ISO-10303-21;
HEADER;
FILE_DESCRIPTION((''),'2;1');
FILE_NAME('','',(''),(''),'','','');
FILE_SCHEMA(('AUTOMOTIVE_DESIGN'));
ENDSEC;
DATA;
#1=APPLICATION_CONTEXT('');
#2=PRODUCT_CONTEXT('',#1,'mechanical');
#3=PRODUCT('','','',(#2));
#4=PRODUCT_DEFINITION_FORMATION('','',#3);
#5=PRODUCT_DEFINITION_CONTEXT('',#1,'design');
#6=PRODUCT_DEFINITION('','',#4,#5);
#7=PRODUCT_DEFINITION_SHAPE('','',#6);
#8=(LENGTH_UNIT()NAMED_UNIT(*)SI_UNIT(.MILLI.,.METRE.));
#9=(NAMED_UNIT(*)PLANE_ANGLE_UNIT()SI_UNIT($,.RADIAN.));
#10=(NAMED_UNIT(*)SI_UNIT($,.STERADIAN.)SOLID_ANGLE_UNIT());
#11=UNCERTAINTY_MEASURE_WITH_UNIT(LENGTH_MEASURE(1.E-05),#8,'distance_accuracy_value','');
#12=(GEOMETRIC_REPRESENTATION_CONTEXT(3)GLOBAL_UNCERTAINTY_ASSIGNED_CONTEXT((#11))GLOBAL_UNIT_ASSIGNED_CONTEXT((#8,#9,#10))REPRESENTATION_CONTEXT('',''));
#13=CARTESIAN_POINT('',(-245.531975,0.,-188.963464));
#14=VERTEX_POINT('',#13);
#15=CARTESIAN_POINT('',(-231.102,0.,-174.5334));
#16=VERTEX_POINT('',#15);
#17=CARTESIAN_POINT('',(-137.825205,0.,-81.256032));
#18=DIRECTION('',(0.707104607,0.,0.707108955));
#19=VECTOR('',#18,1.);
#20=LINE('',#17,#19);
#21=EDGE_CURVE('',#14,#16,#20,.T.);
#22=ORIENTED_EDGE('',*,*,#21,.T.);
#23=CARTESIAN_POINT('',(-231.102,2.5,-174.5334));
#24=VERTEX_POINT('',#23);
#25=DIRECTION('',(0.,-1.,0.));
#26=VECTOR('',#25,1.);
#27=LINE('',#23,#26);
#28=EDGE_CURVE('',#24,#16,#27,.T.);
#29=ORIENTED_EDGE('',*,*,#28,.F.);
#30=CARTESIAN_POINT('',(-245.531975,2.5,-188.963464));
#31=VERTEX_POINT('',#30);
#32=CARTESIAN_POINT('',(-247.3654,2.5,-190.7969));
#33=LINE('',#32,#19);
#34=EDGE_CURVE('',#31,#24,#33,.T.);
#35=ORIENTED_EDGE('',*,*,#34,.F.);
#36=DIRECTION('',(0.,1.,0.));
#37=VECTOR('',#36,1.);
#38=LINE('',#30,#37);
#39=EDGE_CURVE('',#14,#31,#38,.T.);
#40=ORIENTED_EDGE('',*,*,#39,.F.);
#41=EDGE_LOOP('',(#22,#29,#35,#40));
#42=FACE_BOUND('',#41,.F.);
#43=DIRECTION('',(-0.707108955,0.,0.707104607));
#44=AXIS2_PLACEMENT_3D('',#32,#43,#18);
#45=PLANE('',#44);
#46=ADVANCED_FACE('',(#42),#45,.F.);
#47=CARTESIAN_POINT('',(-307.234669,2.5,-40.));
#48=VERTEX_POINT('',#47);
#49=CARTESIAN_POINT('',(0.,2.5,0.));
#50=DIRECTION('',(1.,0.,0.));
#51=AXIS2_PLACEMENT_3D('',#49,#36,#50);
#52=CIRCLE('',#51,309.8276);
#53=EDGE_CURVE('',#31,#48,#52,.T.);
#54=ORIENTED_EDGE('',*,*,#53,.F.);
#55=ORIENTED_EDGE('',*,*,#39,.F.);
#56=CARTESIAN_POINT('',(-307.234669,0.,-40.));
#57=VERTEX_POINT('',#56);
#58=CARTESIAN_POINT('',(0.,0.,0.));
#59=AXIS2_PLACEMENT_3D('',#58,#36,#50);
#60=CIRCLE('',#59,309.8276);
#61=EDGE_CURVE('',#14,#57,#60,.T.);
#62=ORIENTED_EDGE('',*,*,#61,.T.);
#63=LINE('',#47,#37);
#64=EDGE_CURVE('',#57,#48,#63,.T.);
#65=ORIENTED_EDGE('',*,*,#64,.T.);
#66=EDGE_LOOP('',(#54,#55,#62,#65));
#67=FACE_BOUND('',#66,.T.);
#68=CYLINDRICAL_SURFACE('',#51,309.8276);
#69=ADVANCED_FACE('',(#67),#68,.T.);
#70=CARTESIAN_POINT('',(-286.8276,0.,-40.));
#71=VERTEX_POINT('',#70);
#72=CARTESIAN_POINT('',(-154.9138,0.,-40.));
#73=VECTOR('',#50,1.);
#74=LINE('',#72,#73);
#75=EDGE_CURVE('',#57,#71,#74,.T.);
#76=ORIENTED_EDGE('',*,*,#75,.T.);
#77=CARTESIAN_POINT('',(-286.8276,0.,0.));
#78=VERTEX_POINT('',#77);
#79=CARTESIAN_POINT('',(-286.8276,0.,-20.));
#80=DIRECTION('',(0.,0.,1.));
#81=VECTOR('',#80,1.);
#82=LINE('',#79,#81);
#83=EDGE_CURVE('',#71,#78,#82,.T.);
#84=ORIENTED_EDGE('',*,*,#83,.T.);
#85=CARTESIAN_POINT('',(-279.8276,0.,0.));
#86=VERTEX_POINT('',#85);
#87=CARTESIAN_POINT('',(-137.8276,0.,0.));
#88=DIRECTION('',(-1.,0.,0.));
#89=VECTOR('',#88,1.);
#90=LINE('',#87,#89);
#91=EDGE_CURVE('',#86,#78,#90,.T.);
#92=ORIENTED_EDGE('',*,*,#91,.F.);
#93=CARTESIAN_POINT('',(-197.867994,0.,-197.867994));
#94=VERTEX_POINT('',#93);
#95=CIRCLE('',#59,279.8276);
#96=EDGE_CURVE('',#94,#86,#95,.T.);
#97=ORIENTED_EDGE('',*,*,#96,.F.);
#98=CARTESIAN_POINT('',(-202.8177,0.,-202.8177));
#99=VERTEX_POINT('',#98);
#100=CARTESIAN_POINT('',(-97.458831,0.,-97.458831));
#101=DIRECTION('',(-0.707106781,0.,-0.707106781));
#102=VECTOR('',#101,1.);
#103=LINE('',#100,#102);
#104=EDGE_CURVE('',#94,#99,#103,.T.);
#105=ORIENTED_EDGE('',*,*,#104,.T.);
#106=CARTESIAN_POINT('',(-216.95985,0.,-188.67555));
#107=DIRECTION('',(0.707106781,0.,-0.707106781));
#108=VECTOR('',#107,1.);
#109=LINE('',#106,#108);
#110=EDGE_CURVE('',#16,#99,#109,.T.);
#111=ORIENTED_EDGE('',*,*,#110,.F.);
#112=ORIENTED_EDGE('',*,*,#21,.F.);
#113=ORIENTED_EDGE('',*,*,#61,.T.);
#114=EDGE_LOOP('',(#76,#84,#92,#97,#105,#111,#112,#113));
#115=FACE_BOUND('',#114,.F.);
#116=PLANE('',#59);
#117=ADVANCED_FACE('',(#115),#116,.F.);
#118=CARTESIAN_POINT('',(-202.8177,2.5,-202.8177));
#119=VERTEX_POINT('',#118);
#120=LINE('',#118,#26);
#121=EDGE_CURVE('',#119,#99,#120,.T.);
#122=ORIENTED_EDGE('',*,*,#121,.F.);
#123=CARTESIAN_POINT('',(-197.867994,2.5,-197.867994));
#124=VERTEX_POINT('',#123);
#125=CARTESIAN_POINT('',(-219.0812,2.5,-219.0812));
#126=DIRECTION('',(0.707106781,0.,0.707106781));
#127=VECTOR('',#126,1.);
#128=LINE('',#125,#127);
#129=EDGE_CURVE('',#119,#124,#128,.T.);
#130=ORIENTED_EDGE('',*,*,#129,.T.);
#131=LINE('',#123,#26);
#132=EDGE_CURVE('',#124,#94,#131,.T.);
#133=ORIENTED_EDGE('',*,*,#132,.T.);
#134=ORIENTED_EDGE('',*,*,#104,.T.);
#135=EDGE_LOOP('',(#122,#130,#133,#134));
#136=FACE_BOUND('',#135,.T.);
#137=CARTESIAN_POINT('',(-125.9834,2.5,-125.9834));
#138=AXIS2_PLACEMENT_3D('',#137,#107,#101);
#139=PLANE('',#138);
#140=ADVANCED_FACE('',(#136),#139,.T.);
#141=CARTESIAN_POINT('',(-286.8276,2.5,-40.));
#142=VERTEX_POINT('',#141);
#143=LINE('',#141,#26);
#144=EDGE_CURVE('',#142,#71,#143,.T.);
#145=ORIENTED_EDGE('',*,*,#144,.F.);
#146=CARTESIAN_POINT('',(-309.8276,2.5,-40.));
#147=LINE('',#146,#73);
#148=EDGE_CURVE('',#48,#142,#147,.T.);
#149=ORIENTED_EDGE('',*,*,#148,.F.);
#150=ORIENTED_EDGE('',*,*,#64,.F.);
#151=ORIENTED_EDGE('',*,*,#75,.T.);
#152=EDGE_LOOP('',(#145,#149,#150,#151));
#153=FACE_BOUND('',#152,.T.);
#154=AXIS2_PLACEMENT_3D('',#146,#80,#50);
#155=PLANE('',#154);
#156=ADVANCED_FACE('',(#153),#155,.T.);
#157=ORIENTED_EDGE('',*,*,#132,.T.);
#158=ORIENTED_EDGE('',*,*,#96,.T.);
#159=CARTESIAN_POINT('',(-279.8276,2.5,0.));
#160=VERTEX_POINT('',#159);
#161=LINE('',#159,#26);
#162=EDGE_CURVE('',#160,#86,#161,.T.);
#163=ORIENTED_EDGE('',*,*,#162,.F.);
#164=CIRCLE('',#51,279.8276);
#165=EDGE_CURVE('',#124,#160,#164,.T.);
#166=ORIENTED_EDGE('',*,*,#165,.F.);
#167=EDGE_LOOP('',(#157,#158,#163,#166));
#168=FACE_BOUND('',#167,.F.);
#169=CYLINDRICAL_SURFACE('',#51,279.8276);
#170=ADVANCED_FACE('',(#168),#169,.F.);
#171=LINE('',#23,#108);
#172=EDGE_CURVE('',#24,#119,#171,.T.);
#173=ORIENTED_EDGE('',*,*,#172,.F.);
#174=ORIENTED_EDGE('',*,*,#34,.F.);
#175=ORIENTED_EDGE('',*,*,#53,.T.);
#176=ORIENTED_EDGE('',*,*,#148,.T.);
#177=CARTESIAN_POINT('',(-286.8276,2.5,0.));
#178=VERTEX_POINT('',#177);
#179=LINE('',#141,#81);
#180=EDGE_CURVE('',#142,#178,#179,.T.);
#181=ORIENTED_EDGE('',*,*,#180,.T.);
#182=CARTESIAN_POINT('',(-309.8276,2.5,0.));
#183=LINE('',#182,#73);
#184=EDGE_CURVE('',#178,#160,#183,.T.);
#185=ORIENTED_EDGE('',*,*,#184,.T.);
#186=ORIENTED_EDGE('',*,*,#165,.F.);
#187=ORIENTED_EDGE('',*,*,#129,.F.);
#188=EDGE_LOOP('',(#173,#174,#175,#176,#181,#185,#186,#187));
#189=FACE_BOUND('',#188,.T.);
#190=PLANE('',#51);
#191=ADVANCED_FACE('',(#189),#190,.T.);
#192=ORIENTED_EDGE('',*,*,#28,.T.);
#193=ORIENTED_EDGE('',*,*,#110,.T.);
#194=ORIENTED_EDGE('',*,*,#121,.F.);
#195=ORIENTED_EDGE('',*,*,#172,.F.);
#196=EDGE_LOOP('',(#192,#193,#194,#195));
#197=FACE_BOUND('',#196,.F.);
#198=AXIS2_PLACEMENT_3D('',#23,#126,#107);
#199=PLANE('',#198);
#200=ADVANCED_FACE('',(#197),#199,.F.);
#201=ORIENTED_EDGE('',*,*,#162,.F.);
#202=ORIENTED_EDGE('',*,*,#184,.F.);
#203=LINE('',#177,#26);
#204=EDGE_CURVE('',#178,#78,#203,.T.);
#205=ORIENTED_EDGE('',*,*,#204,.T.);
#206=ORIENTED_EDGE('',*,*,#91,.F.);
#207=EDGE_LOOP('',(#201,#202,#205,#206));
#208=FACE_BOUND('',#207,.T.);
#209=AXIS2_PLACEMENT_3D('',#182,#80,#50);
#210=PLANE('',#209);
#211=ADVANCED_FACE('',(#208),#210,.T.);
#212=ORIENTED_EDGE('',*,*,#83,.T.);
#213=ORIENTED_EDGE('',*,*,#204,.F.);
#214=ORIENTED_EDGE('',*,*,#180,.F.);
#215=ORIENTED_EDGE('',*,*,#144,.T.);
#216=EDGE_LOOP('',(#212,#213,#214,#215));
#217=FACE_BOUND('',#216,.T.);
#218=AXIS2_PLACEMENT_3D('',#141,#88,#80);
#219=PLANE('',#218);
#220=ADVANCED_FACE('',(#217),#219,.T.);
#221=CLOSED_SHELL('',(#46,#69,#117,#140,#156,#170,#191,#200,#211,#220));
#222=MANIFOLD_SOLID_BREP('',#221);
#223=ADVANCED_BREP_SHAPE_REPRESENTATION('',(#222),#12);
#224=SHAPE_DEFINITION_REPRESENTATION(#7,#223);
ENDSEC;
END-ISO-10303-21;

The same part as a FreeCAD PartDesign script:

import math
import FreeCAD as App
import Part
import Sketcher
from FreeCAD import Vector
Q = App.Units.Quantity


def add_polygon(sketch, points):
    """Adds a closed chain of lines whose ends are joined by coincident constraints."""
    first, n = sketch.GeometryCount, len(points)
    for a, b in zip(points, points[1:] + points[:1]):
        sketch.addGeometry(Part.LineSegment(App.Vector(*a, 0), App.Vector(*b, 0)), False)
    for i in range(n):
        sketch.addConstraint(Sketcher.Constraint("Coincident", first + i, 2, first + (i + 1) % n, 1))

doc = App.newDocument("Part")
body = doc.addObject("PartDesign::Body", "Body")

# Sketch on XZ plane
sketch1 = body.newObject("Sketcher::SketchObject", "Sketch")
sketch1.AttachmentSupport = (doc.getObject("XZ_Plane"), [""])
sketch1.MapMode = "FlatFace"
sketch1.addGeometry(Part.ArcOfCircle(Part.Circle(Vector(0, 0, 0), Vector(0, 0, 1), 178.1675), math.radians(180), math.radians(225)), False)
sketch1.addGeometry(Part.LineSegment(Vector(-178.1675, 0, 0), Vector(-157.8276, 0, 0)), False)
sketch1.addGeometry(Part.ArcOfCircle(Part.Circle(Vector(0, 0, 0), Vector(0, 0, 1), 157.8276), math.radians(180), math.radians(225)), False)
sketch1.addGeometry(Part.LineSegment(Vector(-111.6009, -111.6009, 0), Vector(-125.9834, -125.9834, 0)), False)
sketch1.addConstraint(Sketcher.Constraint("Coincident", 0, 1, 1, 1))
sketch1.addConstraint(Sketcher.Constraint("Coincident", 1, 2, 2, 1))
sketch1.addConstraint(Sketcher.Constraint("Coincident", 2, 2, 3, 1))
sketch1.addConstraint(Sketcher.Constraint("Coincident", 3, 2, 0, 2))
sketch1.addConstraint(Sketcher.Constraint("Horizontal", 1))
sketch1.addConstraint(Sketcher.Constraint("Coincident", 0, 3, -1, 1))
sketch1.addConstraint(Sketcher.Constraint("Coincident", 2, 3, -1, 1))
sketch1.addConstraint(Sketcher.Constraint("PointOnObject", 0, 1, -1))
sketch1.addConstraint(Sketcher.Constraint("Radius", 2, 157.8276))
sketch1.addConstraint(Sketcher.Constraint("Angle", 3, Q("-135 deg")))
sketch1.addConstraint(Sketcher.Constraint("DistanceX", 1, 1, 1, 2, 20.34))
sketch1.addConstraint(Sketcher.Constraint("DistanceX", 2, 2, -1, 1, 111.601))
pad1 = body.newObject("PartDesign::Pad", "Pad")
pad1.Profile = sketch1
pad1.Length = 2.5
pad1.Reversed = True

# Sketch on XZ plane
sketch2 = body.newObject("Sketcher::SketchObject", "Sketch001")
sketch2.AttachmentSupport = (doc.getObject("XZ_Plane"), [""])
sketch2.MapMode = "FlatFace"
sketch2.AttachmentOffset = App.Placement(Vector(0, 0, -2.5), App.Rotation())
sketch2.addGeometry(Part.ArcOfCircle(Part.Circle(Vector(0, 0, 0), Vector(0, 0, 1), 309.8276), math.radians(180), math.radians(225)), False)
sketch2.addGeometry(Part.LineSegment(Vector(-309.8276, 0, 0), Vector(-137.8276, 0, 0)), False)
sketch2.addGeometry(Part.ArcOfCircle(Part.Circle(Vector(0, 0, 0), Vector(0, 0, 1), 137.8276), math.radians(180), math.radians(225)), False)
sketch2.addGeometry(Part.LineSegment(Vector(-97.458831, -97.458831, 0), Vector(-219.0812, -219.0812, 0)), False)
sketch2.addConstraint(Sketcher.Constraint("Coincident", 0, 1, 1, 1))
sketch2.addConstraint(Sketcher.Constraint("Coincident", 1, 2, 2, 1))
sketch2.addConstraint(Sketcher.Constraint("Coincident", 2, 2, 3, 1))
sketch2.addConstraint(Sketcher.Constraint("Coincident", 3, 2, 0, 2))
sketch2.addConstraint(Sketcher.Constraint("Horizontal", 1))
sketch2.addConstraint(Sketcher.Constraint("Coincident", 0, 3, -1, 1))
sketch2.addConstraint(Sketcher.Constraint("Coincident", 2, 3, -1, 1))
sketch2.addConstraint(Sketcher.Constraint("PointOnObject", 0, 1, -1))
sketch2.addConstraint(Sketcher.Constraint("DistanceX", 1, 1, 1, 2, 172.0))
sketch2.addConstraint(Sketcher.Constraint("Angle", 3, Q("-135 deg")))
sketch2.addConstraint(Sketcher.Constraint("Radius", 0, 309.8276))
sketch2.addConstraint(Sketcher.Constraint("DistanceX", 2, 2, -1, 1, 97.4588))
pad2 = body.newObject("PartDesign::Pad", "Pad001")
pad2.Profile = sketch2
pad2.Length = 2.5

# Sketch on XZ plane
sketch3 = body.newObject("Sketcher::SketchObject", "Sketch002")
sketch3.AttachmentSupport = (doc.getObject("XZ_Plane"), [""])
sketch3.MapMode = "FlatFace"
sketch3.AttachmentOffset = App.Placement(Vector(0, 0, -2.5), App.Rotation())
sketch3.addGeometry(Part.LineSegment(Vector(-97.4588, -97.4588, 0), Vector(-197.867994, -197.867994, 0)), False)
sketch3.addGeometry(Part.ArcOfCircle(Part.Circle(Vector(0, 0, 0), Vector(0, 0, 1), 279.8276), math.radians(180), math.radians(225)), False)
sketch3.addGeometry(Part.LineSegment(Vector(-279.8276, 0, 0), Vector(-137.8276, 0, 0)), False)
sketch3.addGeometry(Part.ArcOfCircle(Part.Circle(Vector(0, 0, 0), Vector(0, 0, 1), 137.827557), math.radians(180), math.radians(225)), False)
sketch3.addConstraint(Sketcher.Constraint("Coincident", 0, 2, 1, 2))
sketch3.addConstraint(Sketcher.Constraint("Coincident", 1, 1, 2, 1))
sketch3.addConstraint(Sketcher.Constraint("Coincident", 2, 2, 3, 1))
sketch3.addConstraint(Sketcher.Constraint("Coincident", 3, 2, 0, 1))
sketch3.addConstraint(Sketcher.Constraint("Horizontal", 2))
sketch3.addConstraint(Sketcher.Constraint("Coincident", 1, 3, -1, 1))
sketch3.addConstraint(Sketcher.Constraint("Coincident", 3, 3, -1, 1))
sketch3.addConstraint(Sketcher.Constraint("PointOnObject", 1, 1, -1))
sketch3.addConstraint(Sketcher.Constraint("DistanceX", 2, 1, 2, 2, 142.0))
sketch3.addConstraint(Sketcher.Constraint("Angle", 0, Q("-135 deg")))
sketch3.addConstraint(Sketcher.Constraint("Radius", 1, 279.8276))
sketch3.addConstraint(Sketcher.Constraint("DistanceX", 0, 2, -1, 1, 197.868))
pocket1 = body.newObject("PartDesign::Pocket", "Pocket")
pocket1.Profile = sketch3
pocket1.Type = "ThroughAll"
pocket1.Reversed = True

# Sketch on XZ plane
sketch4 = body.newObject("Sketcher::SketchObject", "Sketch003")
sketch4.AttachmentSupport = (doc.getObject("XZ_Plane"), [""])
sketch4.MapMode = "FlatFace"
sketch4.AttachmentOffset = App.Placement(Vector(0, 0, -2.5), App.Rotation())
add_polygon(sketch4, [(-309.8276, 0), (-286.8276, 0), (-286.8276, -40), (-309.8276, -40)])  # lines 0-3
add_polygon(sketch4, [(-231.102, -174.5334), (-202.8177, -202.8177), (-219.0812, -219.0812), (-247.3654, -190.7969)])  # lines 4-7
sketch4.addConstraint(Sketcher.Constraint("Horizontal", 0))
sketch4.addConstraint(Sketcher.Constraint("Vertical", 1))
sketch4.addConstraint(Sketcher.Constraint("Horizontal", 2))
sketch4.addConstraint(Sketcher.Constraint("Vertical", 3))
sketch4.addConstraint(Sketcher.Constraint("PointOnObject", 0, 2, -1))
sketch4.addConstraint(Sketcher.Constraint("Perpendicular", 4, 5))
sketch4.addConstraint(Sketcher.Constraint("Perpendicular", 5, 6))
sketch4.addConstraint(Sketcher.Constraint("Perpendicular", 6, 7))
sketch4.addConstraint(Sketcher.Constraint("DistanceX", 0, 1, 0, 2, 23.0))
sketch4.addConstraint(Sketcher.Constraint("DistanceY", 1, 2, 1, 1, 40.0))
sketch4.addConstraint(Sketcher.Constraint("Distance", 4, 40.0))
sketch4.addConstraint(Sketcher.Constraint("Distance", 5, 23.0))
sketch4.addConstraint(Sketcher.Constraint("Angle", 4, Q("-45 deg")))
sketch4.addConstraint(Sketcher.Constraint("DistanceX", 1, 2, 4, 2, 84.01))
sketch4.addConstraint(Sketcher.Constraint("DistanceY", 6, 2, -1, 1, 190.797))
sketch4.addConstraint(Sketcher.Constraint("DistanceX", 7, 2, -1, 1, 231.102))
pocket2 = body.newObject("PartDesign::Pocket", "Pocket001")
pocket2.Profile = sketch4
pocket2.Type = "ThroughAll"
pocket2.Reversed = True

doc.recompute()
